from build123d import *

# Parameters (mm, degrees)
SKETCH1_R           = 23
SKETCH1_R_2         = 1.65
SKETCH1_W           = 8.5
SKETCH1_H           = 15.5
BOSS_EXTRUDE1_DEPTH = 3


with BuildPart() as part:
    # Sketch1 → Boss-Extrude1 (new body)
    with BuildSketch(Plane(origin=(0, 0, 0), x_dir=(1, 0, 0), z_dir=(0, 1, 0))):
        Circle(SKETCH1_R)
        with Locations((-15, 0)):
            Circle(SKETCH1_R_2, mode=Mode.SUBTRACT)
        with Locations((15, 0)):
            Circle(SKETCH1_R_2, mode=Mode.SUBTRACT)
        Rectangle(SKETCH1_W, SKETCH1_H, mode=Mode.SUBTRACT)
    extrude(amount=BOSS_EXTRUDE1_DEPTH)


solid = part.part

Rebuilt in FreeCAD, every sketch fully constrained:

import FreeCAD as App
import Part
import Sketcher

doc = App.newDocument("Part")
body = doc.addObject("PartDesign::Body", "Body")

# Sketch on XZ plane
sketch1 = body.newObject("Sketcher::SketchObject", "Sketch")
sketch1.AttachmentSupport = (doc.getObject("XZ_Plane"), [""])
sketch1.MapMode = "FlatFace"
sketch1.addGeometry(Part.Circle(App.Vector(0, 0, 0), App.Vector(0, 0, 1), 23), False)
sketch1.addGeometry(Part.Circle(App.Vector(-15, 0, 0), App.Vector(0, 0, 1), 1.6), False)
sketch1.addGeometry(Part.LineSegment(App.Vector(4.2, 7.8, 0), App.Vector(-4.2, 7.8, 0)), False)
sketch1.addGeometry(Part.LineSegment(App.Vector(-4.2, 7.8, 0), App.Vector(-4.2, -7.8, 0)), False)
sketch1.addGeometry(Part.LineSegment(App.Vector(-4.2, -7.8, 0), App.Vector(4.2, -7.8, 0)), False)
sketch1.addGeometry(Part.LineSegment(App.Vector(4.2, -7.8, 0), App.Vector(4.2, 7.8, 0)), False)
sketch1.addGeometry(Part.Circle(App.Vector(15, 0, 0), App.Vector(0, 0, 1), 1.6), False)
sketch1.addConstraint(Sketcher.Constraint("Coincident", 2, 2, 3, 1))
sketch1.addConstraint(Sketcher.Constraint("Coincident", 3, 2, 4, 1))
sketch1.addConstraint(Sketcher.Constraint("Coincident", 4, 2, 5, 1))
sketch1.addConstraint(Sketcher.Constraint("Coincident", 5, 2, 2, 1))
sketch1.addConstraint(Sketcher.Constraint("Horizontal", 2))
sketch1.addConstraint(Sketcher.Constraint("Vertical", 3))
sketch1.addConstraint(Sketcher.Constraint("Horizontal", 4))
sketch1.addConstraint(Sketcher.Constraint("Vertical", 5))
sketch1.addConstraint(Sketcher.Constraint("Coincident", 0, 3, -1, 1))
sketch1.addConstraint(Sketcher.Constraint("Equal", 1, 6))
sketch1.addConstraint(Sketcher.Constraint("Symmetric", 1, 3, 6, 3, -1, 1))
sketch1.addConstraint(Sketcher.Constraint("Symmetric", 2, 2, 4, 2, -1, 1))
sketch1.addConstraint(Sketcher.Constraint("PointOnObject", 1, 3, -1))
sketch1.addConstraint(Sketcher.Constraint("Diameter", 0, 46.0))
sketch1.addConstraint(Sketcher.Constraint("Diameter", 1, 3.3))
sketch1.addConstraint(Sketcher.Constraint("DistanceX", 2, 2, 2, 1, 8.5))
sketch1.addConstraint(Sketcher.Constraint("DistanceY", 3, 2, 3, 1, 15.5))
sketch1.addConstraint(Sketcher.Constraint("DistanceX", 1, 3, -1, 1, 15.0))
pad1 = body.newObject("PartDesign::Pad", "Pad")
pad1.Profile = sketch1
pad1.Length = 3
pad1.Reversed = True

doc.recompute()
